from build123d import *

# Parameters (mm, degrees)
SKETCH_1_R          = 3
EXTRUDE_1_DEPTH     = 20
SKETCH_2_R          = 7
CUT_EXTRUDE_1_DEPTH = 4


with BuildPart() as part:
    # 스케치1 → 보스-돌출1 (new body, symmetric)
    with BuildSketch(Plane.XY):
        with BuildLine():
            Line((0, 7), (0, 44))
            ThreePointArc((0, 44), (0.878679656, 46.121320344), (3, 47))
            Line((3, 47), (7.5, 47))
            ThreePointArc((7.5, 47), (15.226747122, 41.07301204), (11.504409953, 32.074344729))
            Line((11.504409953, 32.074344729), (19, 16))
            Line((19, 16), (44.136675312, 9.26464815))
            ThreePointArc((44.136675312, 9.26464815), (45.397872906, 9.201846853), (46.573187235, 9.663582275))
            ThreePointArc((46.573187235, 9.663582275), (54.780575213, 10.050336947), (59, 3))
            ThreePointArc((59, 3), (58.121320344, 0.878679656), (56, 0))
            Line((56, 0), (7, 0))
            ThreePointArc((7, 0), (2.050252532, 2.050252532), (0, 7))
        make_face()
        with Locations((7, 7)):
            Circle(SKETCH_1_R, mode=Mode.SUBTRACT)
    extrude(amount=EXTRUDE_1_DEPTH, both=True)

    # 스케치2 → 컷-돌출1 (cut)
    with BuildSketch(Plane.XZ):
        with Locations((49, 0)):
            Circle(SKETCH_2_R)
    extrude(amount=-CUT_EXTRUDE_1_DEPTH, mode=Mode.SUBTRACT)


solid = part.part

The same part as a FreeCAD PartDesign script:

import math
import FreeCAD as App
import Part
import Sketcher
from FreeCAD import Vector
Q = App.Units.Quantity

doc = App.newDocument("Part")
body = doc.addObject("PartDesign::Body", "Body")

sketch1 = doc.addObject("Sketcher::SketchObject", "Sketch")
body.addObject(sketch1)
sketch1.AttachmentSupport = (doc.XY_Plane, [""])
sketch1.MapMode = "FlatFace"
sketch1.addGeometry(Part.LineSegment(Vector(0, 44, 0), Vector(0, 7, 0)), False)
sketch1.addGeometry(Part.ArcOfCircle(Part.Circle(Vector(7, 7, 0), Vector(0, 0, 1), 7), math.radians(-180), math.radians(-90)), False)
sketch1.addGeometry(Part.LineSegment(Vector(7, 0, 0), Vector(56, 0, 0)), False)
sketch1.addGeometry(Part.ArcOfCircle(Part.Circle(Vector(56, 3, 0), Vector(0, 0, 1), 3), math.radians(-90), math.radians(0)), False)
sketch1.addGeometry(Part.ArcOfCircle(Part.Circle(Vector(51, 3, 0), Vector(0, 0, 1), 8), math.radians(0), math.radians(124)), False)
sketch1.addGeometry(Part.ArcOfCircle(Part.Circle(Vector(44.9, 12.2, 0), Vector(0, 0, 1), 3), math.radians(-105), math.radians(-56)), False)
sketch1.addGeometry(Part.LineSegment(Vector(44.1, 9.3, 0), Vector(19, 16, 0)), False)
sketch1.addGeometry(Part.LineSegment(Vector(19, 16, 0), Vector(11.5, 32.1, 0)), False)
sketch1.addGeometry(Part.ArcOfCircle(Part.Circle(Vector(7.5, 39, 0), Vector(0, 0, 1), 8), math.radians(-60), math.radians(90)), False)
sketch1.addGeometry(Part.LineSegment(Vector(7.5, 47, 0), Vector(3, 47, 0)), False)
sketch1.addGeometry(Part.ArcOfCircle(Part.Circle(Vector(3, 44, 0), Vector(0, 0, 1), 3), math.radians(90), math.radians(180)), False)
sketch1.addGeometry(Part.Circle(Vector(7, 7, 0), Vector(0, 0, 1), 3), False)
sketch1.addConstraint(Sketcher.Constraint("Tangent", 0, 2, 1, 1))
sketch1.addConstraint(Sketcher.Constraint("Tangent", 1, 2, 2, 1))
sketch1.addConstraint(Sketcher.Constraint("Tangent", 2, 2, 3, 1))
sketch1.addConstraint(Sketcher.Constraint("Tangent", 3, 2, 4, 1))
sketch1.addConstraint(Sketcher.Constraint("Tangent", 4, 2, 5, 2))
sketch1.addConstraint(Sketcher.Constraint("Tangent", 5, 1, 6, 1))
sketch1.addConstraint(Sketcher.Constraint("Coincident", 6, 2, 7, 1))
sketch1.addConstraint(Sketcher.Constraint("Coincident", 7, 2, 8, 1))
sketch1.addConstraint(Sketcher.Constraint("Tangent", 8, 2, 9, 1))
sketch1.addConstraint(Sketcher.Constraint("Tangent", 9, 2, 10, 1))
sketch1.addConstraint(Sketcher.Constraint("Tangent", 10, 2, 0, 1))
sketch1.addConstraint(Sketcher.Constraint("Vertical", 0))
sketch1.addConstraint(Sketcher.Constraint("Horizontal", 2))
sketch1.addConstraint(Sketcher.Constraint("Horizontal", 9))
sketch1.addConstraint(Sketcher.Constraint("Coincident", 11, 3, 1, 3))
sketch1.addConstraint(Sketcher.Constraint("Equal", 3, 5))
sketch1.addConstraint(Sketcher.Constraint("Equal", 4, 8))
sketch1.addConstraint(Sketcher.Constraint("Equal", 5, 10))
sketch1.addConstraint(Sketcher.Constraint("Equal", 10, 11))
sketch1.addConstraint(Sketcher.Constraint("PointOnObject", 0, 2, -2))
sketch1.addConstraint(Sketcher.Constraint("PointOnObject", 1, 2, -1))
sketch1.addConstraint(Sketcher.Constraint("Horizontal", 3, 3, 4, 3))
sketch1.addConstraint(Sketcher.Constraint("Diameter", 11, 6.0))
sketch1.addConstraint(Sketcher.Constraint("Radius", 1, 7.0))
sketch1.addConstraint(Sketcher.Constraint("Radius", 4, 8.0))
sketch1.addConstraint(Sketcher.Constraint("DistanceX", 2, 1, 2, 2, 49.0))
sketch1.addConstraint(Sketcher.Constraint("DistanceY", 0, 2, 0, 1, 37.0))
sketch1.addConstraint(Sketcher.Constraint("Angle", 6, Q("165 deg")))
sketch1.addConstraint(Sketcher.Constraint("Angle", 7, Q("115 deg")))
sketch1.addConstraint(Sketcher.Constraint("DistanceX", 9, 2, 9, 1, 4.5))
sketch1.addConstraint(Sketcher.Constraint("DistanceX", -1, 1, 6, 2, 19.0))
sketch1.addConstraint(Sketcher.Constraint("DistanceY", -1, 1, 6, 2, 16.0))
pad1 = doc.addObject("PartDesign::Pad", "Pad")
body.addObject(pad1)
pad1.Profile = sketch1
pad1.Length = 40
pad1.Midplane = True

sketch2 = doc.addObject("Sketcher::SketchObject", "Sketch001")
body.addObject(sketch2)
sketch2.AttachmentSupport = (doc.XZ_Plane, [""])
sketch2.MapMode = "FlatFace"
sketch2.addGeometry(Part.Circle(Vector(49, 0, 0), Vector(0, 0, 1), 7), False)
sketch2.addConstraint(Sketcher.Constraint("PointOnObject", 0, 3, -1))
sketch2.addConstraint(Sketcher.Constraint("Diameter", 0, 14.0))
sketch2.addConstraint(Sketcher.Constraint("DistanceX", -1, 1, 0, 3, 49.0))
pocket1 = doc.addObject("PartDesign::Pocket", "Pocket")
body.addObject(pocket1)
pocket1.Profile = sketch2
pocket1.Length = 4

doc.recompute()
